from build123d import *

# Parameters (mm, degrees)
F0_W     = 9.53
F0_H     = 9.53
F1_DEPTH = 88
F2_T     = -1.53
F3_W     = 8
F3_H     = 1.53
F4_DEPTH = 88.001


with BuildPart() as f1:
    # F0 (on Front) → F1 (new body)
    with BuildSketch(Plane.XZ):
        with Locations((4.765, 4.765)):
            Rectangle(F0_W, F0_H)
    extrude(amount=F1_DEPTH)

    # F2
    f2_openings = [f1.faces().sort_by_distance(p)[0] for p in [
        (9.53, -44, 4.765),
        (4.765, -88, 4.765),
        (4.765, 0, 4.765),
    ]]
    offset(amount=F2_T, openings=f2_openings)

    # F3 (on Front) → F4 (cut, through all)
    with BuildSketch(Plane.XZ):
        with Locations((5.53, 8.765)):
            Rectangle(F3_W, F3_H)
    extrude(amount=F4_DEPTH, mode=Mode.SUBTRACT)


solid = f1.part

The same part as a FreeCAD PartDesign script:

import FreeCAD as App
import Part
import Sketcher


def faces_at(feature, points):
    """Names of the faces that lie closest to the given points."""
    faces = feature.Shape.Faces
    near = lambda p: min(range(len(faces)), key=lambda i: faces[i].distToShape(Part.Vertex(*p))[0])
    return sorted({f"Face{near(p) + 1}" for p in points})


def add_polygon(sketch, points):
    """Adds a closed chain of lines whose ends are joined by coincident constraints."""
    first, n = sketch.GeometryCount, len(points)
    for a, b in zip(points, points[1:] + points[:1]):
        sketch.addGeometry(Part.LineSegment(App.Vector(*a, 0), App.Vector(*b, 0)), False)
    for i in range(n):
        sketch.addConstraint(Sketcher.Constraint("Coincident", first + i, 2, first + (i + 1) % n, 1))

doc = App.newDocument("Part")
body = doc.addObject("PartDesign::Body", "Body")

# Sketch on XZ plane
sketch1 = body.newObject("Sketcher::SketchObject", "Sketch")
sketch1.AttachmentSupport = (doc.getObject("XZ_Plane"), [""])
sketch1.MapMode = "FlatFace"
add_polygon(sketch1, [(0, 10), (0, 0), (10, 0), (10, 10)])  # lines 0-3
sketch1.addConstraint(Sketcher.Constraint("Vertical", 0))
sketch1.addConstraint(Sketcher.Constraint("Horizontal", 1))
sketch1.addConstraint(Sketcher.Constraint("Vertical", 2))
sketch1.addConstraint(Sketcher.Constraint("Horizontal", 3))
sketch1.addConstraint(Sketcher.Constraint("Coincident", 0, 2, -1, 1))
sketch1.addConstraint(Sketcher.Constraint("Equal", 3, 0))
sketch1.addConstraint(Sketcher.Constraint("DistanceX", 1, 1, 1, 2, 9.53))
pad1 = body.newObject("PartDesign::Pad", "Pad")
pad1.Profile = sketch1
pad1.Length = 88
doc.recompute()

thickness = body.newObject("PartDesign::Thickness", "Thickness")
thickness.Base = (pad1, faces_at(pad1, [(9.53, -44, 4.765), (4.765, -88, 4.765), (4.765, 0, 4.765)]))
thickness.Value = 1.53
thickness.Reversed = True
thickness.Join = "Arc"

# Sketch on XZ plane
sketch2 = body.newObject("Sketcher::SketchObject", "Sketch001")
sketch2.AttachmentSupport = (doc.getObject("XZ_Plane"), [""])
sketch2.MapMode = "FlatFace"
add_polygon(sketch2, [(1.5, 9.5), (1.5, 8), (9.5, 8), (9.5, 9.5)])  # lines 0-3
sketch2.addConstraint(Sketcher.Constraint("Vertical", 0))
sketch2.addConstraint(Sketcher.Constraint("Horizontal", 1))
sketch2.addConstraint(Sketcher.Constraint("Vertical", 2))
sketch2.addConstraint(Sketcher.Constraint("Horizontal", 3))
sketch2.addConstraint(Sketcher.Constraint("DistanceX", 1, 1, 1, 2, 8.0))
sketch2.addConstraint(Sketcher.Constraint("DistanceY", -1, 1, 0, 2, 8.0))
sketch2.addConstraint(Sketcher.Constraint("DistanceY", 0, 2, 0, 1, 1.53))
sketch2.addConstraint(Sketcher.Constraint("DistanceX", -1, 1, 0, 2, 1.53))
pocket1 = body.newObject("PartDesign::Pocket", "Pocket")
pocket1.Profile = sketch2
pocket1.Type = "ThroughAll"
pocket1.Reversed = True

doc.recompute()
